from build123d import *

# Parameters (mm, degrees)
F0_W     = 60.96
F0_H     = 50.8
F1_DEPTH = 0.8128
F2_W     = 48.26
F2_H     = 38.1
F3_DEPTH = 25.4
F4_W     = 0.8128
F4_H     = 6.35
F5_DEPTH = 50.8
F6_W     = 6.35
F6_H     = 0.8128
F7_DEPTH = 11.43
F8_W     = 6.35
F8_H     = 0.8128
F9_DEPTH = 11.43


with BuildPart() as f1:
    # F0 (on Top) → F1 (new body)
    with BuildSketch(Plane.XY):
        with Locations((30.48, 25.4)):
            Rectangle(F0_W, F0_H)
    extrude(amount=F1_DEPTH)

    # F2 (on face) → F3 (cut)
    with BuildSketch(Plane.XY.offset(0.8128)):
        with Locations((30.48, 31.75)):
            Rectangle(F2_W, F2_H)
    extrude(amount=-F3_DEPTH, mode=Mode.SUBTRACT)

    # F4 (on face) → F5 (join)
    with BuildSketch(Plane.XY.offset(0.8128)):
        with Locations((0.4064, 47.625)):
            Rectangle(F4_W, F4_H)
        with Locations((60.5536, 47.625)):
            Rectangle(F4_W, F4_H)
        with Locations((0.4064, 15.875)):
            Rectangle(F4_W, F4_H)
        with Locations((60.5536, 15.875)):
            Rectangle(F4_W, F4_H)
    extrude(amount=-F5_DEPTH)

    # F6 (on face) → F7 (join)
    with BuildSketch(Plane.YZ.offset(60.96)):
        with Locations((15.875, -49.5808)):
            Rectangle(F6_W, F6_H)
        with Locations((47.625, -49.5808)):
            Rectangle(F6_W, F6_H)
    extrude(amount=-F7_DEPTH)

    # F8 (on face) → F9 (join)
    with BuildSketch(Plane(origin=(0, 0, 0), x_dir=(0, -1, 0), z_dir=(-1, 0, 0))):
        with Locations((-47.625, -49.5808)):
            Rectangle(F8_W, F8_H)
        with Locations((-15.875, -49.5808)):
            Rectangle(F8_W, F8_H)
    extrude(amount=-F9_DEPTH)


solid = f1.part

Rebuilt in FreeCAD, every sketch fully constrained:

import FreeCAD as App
import Part
import Sketcher
Q = App.Units.Quantity


def add_polygon(sketch, points):
    """Adds a closed chain of lines whose ends are joined by coincident constraints."""
    first, n = sketch.GeometryCount, len(points)
    for a, b in zip(points, points[1:] + points[:1]):
        sketch.addGeometry(Part.LineSegment(App.Vector(*a, 0), App.Vector(*b, 0)), False)
    for i in range(n):
        sketch.addConstraint(Sketcher.Constraint("Coincident", first + i, 2, first + (i + 1) % n, 1))

doc = App.newDocument("Part")
body = doc.addObject("PartDesign::Body", "Body")

sketch1 = body.newObject("Sketcher::SketchObject", "Sketch")
sketch1.AttachmentSupport = (doc.getObject("XY_Plane"), [""])
sketch1.MapMode = "FlatFace"
add_polygon(sketch1, [(0, 51), (0, 0), (61, 0), (61, 51)])
sketch1.addConstraint([
    Sketcher.Constraint("Vertical", 0),
    Sketcher.Constraint("Horizontal", 1),
    Sketcher.Constraint("Vertical", 2),
    Sketcher.Constraint("Horizontal", 3),
    Sketcher.Constraint("Coincident", 0, 2, -1, 1),
    Sketcher.Constraint("DistanceY", 0, 2, 0, 1, Q("2 in")),
    Sketcher.Constraint("DistanceX", 1, 1, 1, 2, Q("2.4 in")),
])
pad1 = body.newObject("PartDesign::Pad", "Pad")
pad1.Profile = sketch1
pad1.Length = Q("0.032 in")

sketch2 = body.newObject("Sketcher::SketchObject", "Sketch001")
sketch2.AttachmentSupport = (doc.getObject("XY_Plane"), [""])
sketch2.MapMode = "FlatFace"
sketch2.AttachmentOffset = App.Placement(App.Vector(0, 0, 0.032 * 25.4), App.Rotation())
add_polygon(sketch2, [(6, 51), (6, 13), (55, 13), (55, 51)])
sketch2.addConstraint([
    Sketcher.Constraint("Vertical", 0),
    Sketcher.Constraint("Horizontal", 1),
    Sketcher.Constraint("Vertical", 2),
    Sketcher.Constraint("Horizontal", 3),
    Sketcher.Constraint("DistanceX", 1, 1, 1, 2, Q("1.9 in")),
    Sketcher.Constraint("DistanceY", 0, 2, 0, 1, Q("1.5 in")),
    Sketcher.Constraint("DistanceY", -1, 1, 2, 2, Q("2 in")),
    Sketcher.Constraint("DistanceX", -1, 1, 0, 2, Q("0.25 in")),
])
pocket1 = body.newObject("PartDesign::Pocket", "Pocket")
pocket1.Profile = sketch2
pocket1.Length = Q("1 in")

sketch3 = body.newObject("Sketcher::SketchObject", "Sketch002")
sketch3.AttachmentSupport = (doc.getObject("XY_Plane"), [""])
sketch3.MapMode = "FlatFace"
sketch3.AttachmentOffset = App.Placement(App.Vector(0, 0, 0.032 * 25.4), App.Rotation())
add_polygon(sketch3, [(0, 50.8), (0, 44.5), (0.8, 44.5), (0.8, 50.8)])
add_polygon(sketch3, [(60.1, 50.8), (60.1, 44.5), (61, 44.5), (61, 50.8)])
add_polygon(sketch3, [(0, 19.1), (0, 12.7), (0.8, 12.7), (0.8, 19.1)])
add_polygon(sketch3, [(60.1, 19.1), (60.1, 12.7), (61, 12.7), (61, 19.1)])
sketch3.addConstraint([
    Sketcher.Constraint("Vertical", 0),
    Sketcher.Constraint("Horizontal", 1),
    Sketcher.Constraint("Vertical", 2),
    Sketcher.Constraint("Horizontal", 3),
    Sketcher.Constraint("Vertical", 4),
    Sketcher.Constraint("Horizontal", 5),
    Sketcher.Constraint("Vertical", 6),
    Sketcher.Constraint("Horizontal", 7),
    Sketcher.Constraint("Vertical", 8),
    Sketcher.Constraint("Horizontal", 9),
    Sketcher.Constraint("Vertical", 10),
    Sketcher.Constraint("Horizontal", 11),
    Sketcher.Constraint("Vertical", 12),
    Sketcher.Constraint("Horizontal", 13),
    Sketcher.Constraint("Vertical", 14),
    Sketcher.Constraint("Horizontal", 15),
    Sketcher.Constraint("PointOnObject", 0, 2, -2),
    Sketcher.Constraint("PointOnObject", 8, 2, -2),
    Sketcher.Constraint("Horizontal", 1, 2, 4, 2),
    Sketcher.Constraint("Horizontal", 3, 2, 6, 2),
    Sketcher.Constraint("Horizontal", 9, 2, 12, 2),
    Sketcher.Constraint("Horizontal", 11, 2, 14, 2),
    Sketcher.Constraint("Vertical", 2, 2, 9, 2),
    Sketcher.Constraint("Vertical", 7, 2, 12, 2),
    Sketcher.Constraint("Vertical", 6, 2, 13, 2),
    Sketcher.Constraint("Equal", 3, 5),
    Sketcher.Constraint("Equal", 6, 8),
    Sketcher.Constraint("DistanceY", -1, 1, 2, 2, Q("2 in")),
    Sketcher.Constraint("DistanceY", 10, 2, 1, 2, Q("1 in")),
    Sketcher.Constraint("DistanceY", 0, 2, 0, 1, Q("0.25 in")),
    Sketcher.Constraint("DistanceX", -1, 1, 5, 2, Q("2.4 in")),
    Sketcher.Constraint("DistanceX", 1, 1, 1, 2, Q("0.032 in")),
])
pad2 = body.newObject("PartDesign::Pad", "Pad001")
pad2.Profile = sketch3
pad2.Length = Q("2 in")
pad2.Reversed = True

sketch4 = body.newObject("Sketcher::SketchObject", "Sketch003")
sketch4.AttachmentSupport = (doc.getObject("YZ_Plane"), [""])
sketch4.MapMode = "FlatFace"
sketch4.AttachmentOffset = App.Placement(App.Vector(0, 0, 2.4 * 25.4), App.Rotation())
add_polygon(sketch4, [(12.7, -49.2), (12.7, -50), (19.1, -50), (19.1, -49.2)])
add_polygon(sketch4, [(44.5, -49.2), (44.5, -50), (50.8, -50), (50.8, -49.2)])
sketch4.addConstraint([
    Sketcher.Constraint("Vertical", 0),
    Sketcher.Constraint("Horizontal", 1),
    Sketcher.Constraint("Vertical", 2),
    Sketcher.Constraint("Horizontal", 3),
    Sketcher.Constraint("Vertical", 4),
    Sketcher.Constraint("Horizontal", 5),
    Sketcher.Constraint("Vertical", 6),
    Sketcher.Constraint("Horizontal", 7),
    Sketcher.Constraint("Horizontal", 1, 2, 4, 2),
    Sketcher.Constraint("Horizontal", 3, 2, 6, 2),
    Sketcher.Constraint("Equal", 3, 5),
    Sketcher.Constraint("DistanceX", -1, 1, 5, 2, Q("2 in")),
    Sketcher.Constraint("DistanceX", 1, 2, 4, 2, Q("1 in")),
    Sketcher.Constraint("DistanceX", 1, 1, 1, 2, Q("0.25 in")),
    Sketcher.Constraint("DistanceY", 0, 2, 0, 1, Q("0.032 in")),
    Sketcher.Constraint("DistanceY", 0, 2, -1, 1, Q("1.968 in")),
])
pad3 = body.newObject("PartDesign::Pad", "Pad002")
pad3.Profile = sketch4
pad3.Length = Q("0.45 in")
pad3.Reversed = True

sketch5 = body.newObject("Sketcher::SketchObject", "Sketch004")
sketch5.AttachmentSupport = (doc.getObject("YZ_Plane"), [""])
sketch5.MapMode = "FlatFace"
add_polygon(sketch5, [(50.8, -49.2), (50.8, -50), (44.5, -50), (44.5, -49.2)])
add_polygon(sketch5, [(19.1, -49.2), (19.1, -50), (12.7, -50), (12.7, -49.2)])
sketch5.addConstraint([
    Sketcher.Constraint("Vertical", 0),
    Sketcher.Constraint("Horizontal", 1),
    Sketcher.Constraint("Vertical", 2),
    Sketcher.Constraint("Horizontal", 3),
    Sketcher.Constraint("Vertical", 4),
    Sketcher.Constraint("Horizontal", 5),
    Sketcher.Constraint("Vertical", 6),
    Sketcher.Constraint("Horizontal", 7),
    Sketcher.Constraint("Horizontal", 1, 2, 4, 2),
    Sketcher.Constraint("Horizontal", 3, 2, 6, 2),
    Sketcher.Constraint("Equal", 3, 5),
    Sketcher.Constraint("DistanceX", -1, 1, 0, 2, Q("2 in")),
    Sketcher.Constraint("DistanceX", 4, 2, 1, 2, Q("1 in")),
    Sketcher.Constraint("DistanceX", 1, 2, 1, 1, Q("0.25 in")),
    Sketcher.Constraint("DistanceY", 0, 2, 0, 1, Q("0.032 in")),
    Sketcher.Constraint("DistanceY", 0, 2, -1, 1, Q("1.968 in")),
])
pad4 = body.newObject("PartDesign::Pad", "Pad003")
pad4.Profile = sketch5
pad4.Length = Q("0.45 in")

doc.recompute()
